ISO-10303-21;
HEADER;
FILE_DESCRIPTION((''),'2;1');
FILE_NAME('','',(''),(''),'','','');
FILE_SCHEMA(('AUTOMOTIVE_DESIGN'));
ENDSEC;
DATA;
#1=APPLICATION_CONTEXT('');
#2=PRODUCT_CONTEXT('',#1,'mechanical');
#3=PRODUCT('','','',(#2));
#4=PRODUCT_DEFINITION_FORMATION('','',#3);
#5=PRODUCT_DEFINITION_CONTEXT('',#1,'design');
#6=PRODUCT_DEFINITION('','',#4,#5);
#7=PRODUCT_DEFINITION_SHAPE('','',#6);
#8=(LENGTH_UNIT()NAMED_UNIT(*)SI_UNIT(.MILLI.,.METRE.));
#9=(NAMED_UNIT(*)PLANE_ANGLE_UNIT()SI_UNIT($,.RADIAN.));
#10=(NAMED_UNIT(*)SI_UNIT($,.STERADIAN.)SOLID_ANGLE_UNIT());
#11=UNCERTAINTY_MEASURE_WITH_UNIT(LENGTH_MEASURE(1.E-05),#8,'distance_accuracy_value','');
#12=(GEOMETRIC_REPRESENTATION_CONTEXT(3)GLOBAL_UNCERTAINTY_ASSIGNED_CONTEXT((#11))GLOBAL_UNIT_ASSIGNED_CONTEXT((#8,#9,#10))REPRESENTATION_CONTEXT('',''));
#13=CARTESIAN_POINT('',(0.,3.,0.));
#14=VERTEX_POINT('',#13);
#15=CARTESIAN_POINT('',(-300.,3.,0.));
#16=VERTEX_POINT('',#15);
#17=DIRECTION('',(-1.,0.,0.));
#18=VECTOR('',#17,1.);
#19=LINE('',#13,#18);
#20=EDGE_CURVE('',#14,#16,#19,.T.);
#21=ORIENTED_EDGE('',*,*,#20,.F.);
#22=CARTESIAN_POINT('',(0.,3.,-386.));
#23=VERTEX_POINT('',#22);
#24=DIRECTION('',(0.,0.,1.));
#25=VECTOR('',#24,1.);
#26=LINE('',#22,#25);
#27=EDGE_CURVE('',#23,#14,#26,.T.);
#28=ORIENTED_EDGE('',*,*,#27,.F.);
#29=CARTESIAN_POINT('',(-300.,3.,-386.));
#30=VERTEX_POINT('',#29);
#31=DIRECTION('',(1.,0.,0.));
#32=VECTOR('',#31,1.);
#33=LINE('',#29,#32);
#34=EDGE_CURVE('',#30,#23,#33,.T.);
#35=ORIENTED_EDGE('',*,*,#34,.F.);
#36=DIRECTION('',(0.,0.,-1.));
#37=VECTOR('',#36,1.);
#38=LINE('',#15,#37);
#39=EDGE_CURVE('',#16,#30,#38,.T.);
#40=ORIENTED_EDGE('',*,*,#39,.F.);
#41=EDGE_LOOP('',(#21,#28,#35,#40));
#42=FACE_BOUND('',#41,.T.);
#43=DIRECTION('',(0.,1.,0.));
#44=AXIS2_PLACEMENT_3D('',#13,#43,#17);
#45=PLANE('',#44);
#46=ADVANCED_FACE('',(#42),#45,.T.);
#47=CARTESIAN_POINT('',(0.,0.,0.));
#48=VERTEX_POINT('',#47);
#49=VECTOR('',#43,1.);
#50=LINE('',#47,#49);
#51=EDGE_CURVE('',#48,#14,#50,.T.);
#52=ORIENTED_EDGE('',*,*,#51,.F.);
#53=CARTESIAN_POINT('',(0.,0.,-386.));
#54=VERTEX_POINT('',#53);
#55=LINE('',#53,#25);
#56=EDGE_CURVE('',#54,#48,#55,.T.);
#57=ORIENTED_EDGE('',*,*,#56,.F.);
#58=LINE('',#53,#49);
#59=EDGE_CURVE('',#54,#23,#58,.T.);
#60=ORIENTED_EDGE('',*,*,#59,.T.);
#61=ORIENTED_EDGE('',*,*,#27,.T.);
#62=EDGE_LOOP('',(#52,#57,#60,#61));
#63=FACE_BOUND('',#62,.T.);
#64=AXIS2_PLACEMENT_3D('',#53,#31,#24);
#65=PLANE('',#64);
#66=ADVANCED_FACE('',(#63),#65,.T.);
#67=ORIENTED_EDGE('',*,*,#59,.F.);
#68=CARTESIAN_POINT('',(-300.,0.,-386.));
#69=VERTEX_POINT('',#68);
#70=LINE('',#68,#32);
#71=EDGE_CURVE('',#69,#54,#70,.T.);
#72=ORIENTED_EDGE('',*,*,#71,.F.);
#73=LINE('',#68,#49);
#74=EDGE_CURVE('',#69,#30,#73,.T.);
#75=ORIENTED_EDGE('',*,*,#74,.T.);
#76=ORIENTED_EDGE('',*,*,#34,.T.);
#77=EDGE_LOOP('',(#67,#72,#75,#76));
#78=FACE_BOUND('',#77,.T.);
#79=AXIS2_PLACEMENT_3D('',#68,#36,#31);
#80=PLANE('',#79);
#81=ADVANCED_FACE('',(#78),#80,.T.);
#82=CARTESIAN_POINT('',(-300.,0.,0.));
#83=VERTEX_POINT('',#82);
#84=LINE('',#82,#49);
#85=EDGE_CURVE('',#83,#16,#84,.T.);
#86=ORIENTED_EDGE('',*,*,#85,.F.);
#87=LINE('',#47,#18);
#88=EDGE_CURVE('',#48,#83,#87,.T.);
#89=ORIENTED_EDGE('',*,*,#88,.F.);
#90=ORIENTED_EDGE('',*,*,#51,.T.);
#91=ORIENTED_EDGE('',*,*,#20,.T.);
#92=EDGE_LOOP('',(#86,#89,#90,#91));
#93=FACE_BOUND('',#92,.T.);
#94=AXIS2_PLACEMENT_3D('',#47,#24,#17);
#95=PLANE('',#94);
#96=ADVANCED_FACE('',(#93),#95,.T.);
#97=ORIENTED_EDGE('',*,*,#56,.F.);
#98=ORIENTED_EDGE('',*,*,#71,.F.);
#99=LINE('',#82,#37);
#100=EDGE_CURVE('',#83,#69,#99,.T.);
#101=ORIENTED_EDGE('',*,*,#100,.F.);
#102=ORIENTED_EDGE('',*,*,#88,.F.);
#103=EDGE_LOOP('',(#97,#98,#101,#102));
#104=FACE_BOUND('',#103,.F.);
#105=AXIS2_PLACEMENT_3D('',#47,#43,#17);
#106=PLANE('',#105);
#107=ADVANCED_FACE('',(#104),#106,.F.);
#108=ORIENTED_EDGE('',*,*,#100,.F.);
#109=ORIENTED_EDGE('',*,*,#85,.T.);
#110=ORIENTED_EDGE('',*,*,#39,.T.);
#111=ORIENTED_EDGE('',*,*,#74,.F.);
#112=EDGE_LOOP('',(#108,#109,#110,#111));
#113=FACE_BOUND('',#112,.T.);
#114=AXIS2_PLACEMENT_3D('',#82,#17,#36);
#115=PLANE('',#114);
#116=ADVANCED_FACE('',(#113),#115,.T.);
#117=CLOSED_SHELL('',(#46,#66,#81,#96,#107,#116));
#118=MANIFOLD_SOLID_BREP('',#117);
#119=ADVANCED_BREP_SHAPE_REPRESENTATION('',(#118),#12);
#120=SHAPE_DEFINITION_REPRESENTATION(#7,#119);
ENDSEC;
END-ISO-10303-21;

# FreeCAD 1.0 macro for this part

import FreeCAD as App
import Part
import Sketcher
Q = App.Units.Quantity


def add_polygon(sketch, points):
    """Adds a closed chain of lines whose ends are joined by coincident constraints."""
    first, n = sketch.GeometryCount, len(points)
    for a, b in zip(points, points[1:] + points[:1]):
        sketch.addGeometry(Part.LineSegment(App.Vector(*a, 0), App.Vector(*b, 0)), False)
    for i in range(n):
        sketch.addConstraint(Sketcher.Constraint("Coincident", first + i, 2, first + (i + 1) % n, 1))

doc = App.newDocument("Part")
body = doc.addObject("PartDesign::Body", "Body")

# Sketch on XZ plane
sketch1 = doc.addObject("Sketcher::SketchObject", "Sketch")
body.addObject(sketch1)
sketch1.AttachmentSupport = (doc.XZ_Plane, [""])
sketch1.MapMode = "FlatFace"
add_polygon(sketch1, [(-300, 0), (0, 0), (0, -386), (-300, -386)])  # lines 0-3
sketch1.addConstraint([
    Sketcher.Constraint("Horizontal", 0),
    Sketcher.Constraint("Vertical", 1),
    Sketcher.Constraint("Horizontal", 2),
    Sketcher.Constraint("Vertical", 3),
    Sketcher.Constraint("Coincident", 0, 2, -1, 1),
    Sketcher.Constraint("DistanceX", 0, 1, 0, 2, Q("300 mm")),
    Sketcher.Constraint("DistanceY", 1, 2, 1, 1, Q("386 mm")),
])
pad1 = doc.addObject("PartDesign::Pad", "Pad")
body.addObject(pad1)
pad1.Profile = sketch1
pad1.Length = 3
pad1.Reversed = True

doc.recompute()
